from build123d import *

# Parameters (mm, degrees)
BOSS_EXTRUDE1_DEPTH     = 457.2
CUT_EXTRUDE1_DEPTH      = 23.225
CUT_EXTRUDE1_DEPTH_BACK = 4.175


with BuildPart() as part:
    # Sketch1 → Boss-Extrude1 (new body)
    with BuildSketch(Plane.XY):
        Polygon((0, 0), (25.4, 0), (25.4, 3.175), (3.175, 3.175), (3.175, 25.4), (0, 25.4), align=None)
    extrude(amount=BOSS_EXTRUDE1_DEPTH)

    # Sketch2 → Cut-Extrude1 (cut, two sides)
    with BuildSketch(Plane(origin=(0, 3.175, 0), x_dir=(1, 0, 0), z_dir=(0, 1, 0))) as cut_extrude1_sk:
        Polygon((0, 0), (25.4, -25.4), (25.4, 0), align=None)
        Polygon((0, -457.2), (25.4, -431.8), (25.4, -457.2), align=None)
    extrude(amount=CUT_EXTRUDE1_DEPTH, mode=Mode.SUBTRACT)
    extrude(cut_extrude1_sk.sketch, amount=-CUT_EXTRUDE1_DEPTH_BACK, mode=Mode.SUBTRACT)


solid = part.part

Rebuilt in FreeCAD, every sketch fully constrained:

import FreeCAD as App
import Part
import Sketcher

V = App.Vector
Q = App.Units.Quantity

doc = App.newDocument("Part")
params = doc.addObject("Spreadsheet::Sheet", "Params")
for row, (alias, value) in enumerate([
    ("sketch1_width", "1 in"),
    ("sketch1_width2", "0.875 in"),
    ("pad1_length", "18 in"),
    ("sketch2_width", "1 in"),
], start=1):
    params.set(f"A{row}", alias)
    params.set(f"B{row}", "=" + value)
    params.setAlias(f"B{row}", alias)

body = doc.addObject("PartDesign::Body", "Body")

sketch1 = body.newObject("Sketcher::SketchObject", "Sketch")
sketch1.AttachmentSupport = (doc.getObject("XY_Plane"), [""])
sketch1.MapMode = "FlatFace"
sketch1.addGeometry(Part.LineSegment(V(0, 0, 0), V(25.4, 0, 0)), False)
sketch1.addGeometry(Part.LineSegment(V(25.4, 0, 0), V(25.4, 3.2, 0)), False)
sketch1.addGeometry(Part.LineSegment(V(25.4, 3.2, 0), V(3.2, 3.2, 0)), False)
sketch1.addGeometry(Part.LineSegment(V(3.2, 3.2, 0), V(3.2, 25.4, 0)), False)
sketch1.addGeometry(Part.LineSegment(V(3.2, 25.4, 0), V(0, 25.4, 0)), False)
sketch1.addGeometry(Part.LineSegment(V(0, 25.4, 0), V(0, 0, 0)), False)
sketch1.addConstraint(Sketcher.Constraint("Coincident", 0, 2, 1, 1))
sketch1.addConstraint(Sketcher.Constraint("Coincident", 1, 2, 2, 1))
sketch1.addConstraint(Sketcher.Constraint("Coincident", 2, 2, 3, 1))
sketch1.addConstraint(Sketcher.Constraint("Coincident", 3, 2, 4, 1))
sketch1.addConstraint(Sketcher.Constraint("Coincident", 4, 2, 5, 1))
sketch1.addConstraint(Sketcher.Constraint("Coincident", 5, 2, 0, 1))
sketch1.addConstraint(Sketcher.Constraint("Horizontal", 0))
sketch1.addConstraint(Sketcher.Constraint("Vertical", 1))
sketch1.addConstraint(Sketcher.Constraint("Horizontal", 2))
sketch1.addConstraint(Sketcher.Constraint("Vertical", 3))
sketch1.addConstraint(Sketcher.Constraint("Horizontal", 4))
sketch1.addConstraint(Sketcher.Constraint("Vertical", 5))
sketch1.addConstraint(Sketcher.Constraint("Coincident", 5, 2, -1, 1))
sketch1.addConstraint(Sketcher.Constraint("Equal", 4, 1))
sketch1.addConstraint(Sketcher.Constraint("Equal", 2, 3))
sketch1.addConstraint(Sketcher.Constraint("DistanceX", 0, 1, 0, 2, Q("1 in")))
sketch1.addConstraint(Sketcher.Constraint("DistanceX", 2, 2, 2, 1, Q("0.875 in")))
sketch1.setExpression("Constraints[15]", "Params.sketch1_width")
sketch1.setExpression("Constraints[16]", "Params.sketch1_width2")
pad1 = body.newObject("PartDesign::Pad", "Pad")
pad1.Profile = sketch1
pad1.setExpression("Length", "Params.pad1_length")

sketch2 = body.newObject("Sketcher::SketchObject", "Sketch001")
sketch2.AttachmentSupport = (doc.getObject("XZ_Plane"), [""])
sketch2.MapMode = "FlatFace"
sketch2.AttachmentOffset = App.Placement(V(0, 0, -0.125 * 25.4), App.Rotation())
sketch2.addGeometry(Part.LineSegment(V(0, 0, 0), V(25, 25, 0)), False)
sketch2.addGeometry(Part.LineSegment(V(25, 25, 0), V(25, 0, 0)), False)
sketch2.addGeometry(Part.LineSegment(V(25, 0, 0), V(0, 0, 0)), False)
sketch2.addGeometry(Part.LineSegment(V(25, 432, 0), V(0, 457, 0)), False)
sketch2.addGeometry(Part.LineSegment(V(0, 457, 0), V(25, 457, 0)), False)
sketch2.addGeometry(Part.LineSegment(V(25, 457, 0), V(25, 432, 0)), False)
sketch2.addConstraint(Sketcher.Constraint("Coincident", 0, 2, 1, 1))
sketch2.addConstraint(Sketcher.Constraint("Coincident", 1, 2, 2, 1))
sketch2.addConstraint(Sketcher.Constraint("Coincident", 2, 2, 0, 1))
sketch2.addConstraint(Sketcher.Constraint("Coincident", 3, 2, 4, 1))
sketch2.addConstraint(Sketcher.Constraint("Coincident", 4, 2, 5, 1))
sketch2.addConstraint(Sketcher.Constraint("Coincident", 5, 2, 3, 1))
sketch2.addConstraint(Sketcher.Constraint("Vertical", 1))
sketch2.addConstraint(Sketcher.Constraint("Horizontal", 2))
sketch2.addConstraint(Sketcher.Constraint("Horizontal", 4))
sketch2.addConstraint(Sketcher.Constraint("Vertical", 5))
sketch2.addConstraint(Sketcher.Constraint("Coincident", 2, 2, -1, 1))
sketch2.addConstraint(Sketcher.Constraint("PointOnObject", 3, 2, -2))
sketch2.addConstraint(Sketcher.Constraint("Perpendicular", 0, 3))
sketch2.addConstraint(Sketcher.Constraint("Vertical", 1, 2, 4, 2))
sketch2.addConstraint(Sketcher.Constraint("Equal", 4, 1))
sketch2.addConstraint(Sketcher.Constraint("DistanceX", 2, 2, 2, 1, Q("1 in")))
sketch2.addConstraint(Sketcher.Constraint("DistanceY", -1, 1, 3, 2, Q("18 in")))
sketch2.setExpression("Constraints[15]", "Params.sketch2_width")
pocket1 = body.newObject("PartDesign::Pocket", "Pocket")
pocket1.Profile = sketch2
pocket1.Type = "ThroughAll"
pocket1.Midplane = True

doc.recompute()
